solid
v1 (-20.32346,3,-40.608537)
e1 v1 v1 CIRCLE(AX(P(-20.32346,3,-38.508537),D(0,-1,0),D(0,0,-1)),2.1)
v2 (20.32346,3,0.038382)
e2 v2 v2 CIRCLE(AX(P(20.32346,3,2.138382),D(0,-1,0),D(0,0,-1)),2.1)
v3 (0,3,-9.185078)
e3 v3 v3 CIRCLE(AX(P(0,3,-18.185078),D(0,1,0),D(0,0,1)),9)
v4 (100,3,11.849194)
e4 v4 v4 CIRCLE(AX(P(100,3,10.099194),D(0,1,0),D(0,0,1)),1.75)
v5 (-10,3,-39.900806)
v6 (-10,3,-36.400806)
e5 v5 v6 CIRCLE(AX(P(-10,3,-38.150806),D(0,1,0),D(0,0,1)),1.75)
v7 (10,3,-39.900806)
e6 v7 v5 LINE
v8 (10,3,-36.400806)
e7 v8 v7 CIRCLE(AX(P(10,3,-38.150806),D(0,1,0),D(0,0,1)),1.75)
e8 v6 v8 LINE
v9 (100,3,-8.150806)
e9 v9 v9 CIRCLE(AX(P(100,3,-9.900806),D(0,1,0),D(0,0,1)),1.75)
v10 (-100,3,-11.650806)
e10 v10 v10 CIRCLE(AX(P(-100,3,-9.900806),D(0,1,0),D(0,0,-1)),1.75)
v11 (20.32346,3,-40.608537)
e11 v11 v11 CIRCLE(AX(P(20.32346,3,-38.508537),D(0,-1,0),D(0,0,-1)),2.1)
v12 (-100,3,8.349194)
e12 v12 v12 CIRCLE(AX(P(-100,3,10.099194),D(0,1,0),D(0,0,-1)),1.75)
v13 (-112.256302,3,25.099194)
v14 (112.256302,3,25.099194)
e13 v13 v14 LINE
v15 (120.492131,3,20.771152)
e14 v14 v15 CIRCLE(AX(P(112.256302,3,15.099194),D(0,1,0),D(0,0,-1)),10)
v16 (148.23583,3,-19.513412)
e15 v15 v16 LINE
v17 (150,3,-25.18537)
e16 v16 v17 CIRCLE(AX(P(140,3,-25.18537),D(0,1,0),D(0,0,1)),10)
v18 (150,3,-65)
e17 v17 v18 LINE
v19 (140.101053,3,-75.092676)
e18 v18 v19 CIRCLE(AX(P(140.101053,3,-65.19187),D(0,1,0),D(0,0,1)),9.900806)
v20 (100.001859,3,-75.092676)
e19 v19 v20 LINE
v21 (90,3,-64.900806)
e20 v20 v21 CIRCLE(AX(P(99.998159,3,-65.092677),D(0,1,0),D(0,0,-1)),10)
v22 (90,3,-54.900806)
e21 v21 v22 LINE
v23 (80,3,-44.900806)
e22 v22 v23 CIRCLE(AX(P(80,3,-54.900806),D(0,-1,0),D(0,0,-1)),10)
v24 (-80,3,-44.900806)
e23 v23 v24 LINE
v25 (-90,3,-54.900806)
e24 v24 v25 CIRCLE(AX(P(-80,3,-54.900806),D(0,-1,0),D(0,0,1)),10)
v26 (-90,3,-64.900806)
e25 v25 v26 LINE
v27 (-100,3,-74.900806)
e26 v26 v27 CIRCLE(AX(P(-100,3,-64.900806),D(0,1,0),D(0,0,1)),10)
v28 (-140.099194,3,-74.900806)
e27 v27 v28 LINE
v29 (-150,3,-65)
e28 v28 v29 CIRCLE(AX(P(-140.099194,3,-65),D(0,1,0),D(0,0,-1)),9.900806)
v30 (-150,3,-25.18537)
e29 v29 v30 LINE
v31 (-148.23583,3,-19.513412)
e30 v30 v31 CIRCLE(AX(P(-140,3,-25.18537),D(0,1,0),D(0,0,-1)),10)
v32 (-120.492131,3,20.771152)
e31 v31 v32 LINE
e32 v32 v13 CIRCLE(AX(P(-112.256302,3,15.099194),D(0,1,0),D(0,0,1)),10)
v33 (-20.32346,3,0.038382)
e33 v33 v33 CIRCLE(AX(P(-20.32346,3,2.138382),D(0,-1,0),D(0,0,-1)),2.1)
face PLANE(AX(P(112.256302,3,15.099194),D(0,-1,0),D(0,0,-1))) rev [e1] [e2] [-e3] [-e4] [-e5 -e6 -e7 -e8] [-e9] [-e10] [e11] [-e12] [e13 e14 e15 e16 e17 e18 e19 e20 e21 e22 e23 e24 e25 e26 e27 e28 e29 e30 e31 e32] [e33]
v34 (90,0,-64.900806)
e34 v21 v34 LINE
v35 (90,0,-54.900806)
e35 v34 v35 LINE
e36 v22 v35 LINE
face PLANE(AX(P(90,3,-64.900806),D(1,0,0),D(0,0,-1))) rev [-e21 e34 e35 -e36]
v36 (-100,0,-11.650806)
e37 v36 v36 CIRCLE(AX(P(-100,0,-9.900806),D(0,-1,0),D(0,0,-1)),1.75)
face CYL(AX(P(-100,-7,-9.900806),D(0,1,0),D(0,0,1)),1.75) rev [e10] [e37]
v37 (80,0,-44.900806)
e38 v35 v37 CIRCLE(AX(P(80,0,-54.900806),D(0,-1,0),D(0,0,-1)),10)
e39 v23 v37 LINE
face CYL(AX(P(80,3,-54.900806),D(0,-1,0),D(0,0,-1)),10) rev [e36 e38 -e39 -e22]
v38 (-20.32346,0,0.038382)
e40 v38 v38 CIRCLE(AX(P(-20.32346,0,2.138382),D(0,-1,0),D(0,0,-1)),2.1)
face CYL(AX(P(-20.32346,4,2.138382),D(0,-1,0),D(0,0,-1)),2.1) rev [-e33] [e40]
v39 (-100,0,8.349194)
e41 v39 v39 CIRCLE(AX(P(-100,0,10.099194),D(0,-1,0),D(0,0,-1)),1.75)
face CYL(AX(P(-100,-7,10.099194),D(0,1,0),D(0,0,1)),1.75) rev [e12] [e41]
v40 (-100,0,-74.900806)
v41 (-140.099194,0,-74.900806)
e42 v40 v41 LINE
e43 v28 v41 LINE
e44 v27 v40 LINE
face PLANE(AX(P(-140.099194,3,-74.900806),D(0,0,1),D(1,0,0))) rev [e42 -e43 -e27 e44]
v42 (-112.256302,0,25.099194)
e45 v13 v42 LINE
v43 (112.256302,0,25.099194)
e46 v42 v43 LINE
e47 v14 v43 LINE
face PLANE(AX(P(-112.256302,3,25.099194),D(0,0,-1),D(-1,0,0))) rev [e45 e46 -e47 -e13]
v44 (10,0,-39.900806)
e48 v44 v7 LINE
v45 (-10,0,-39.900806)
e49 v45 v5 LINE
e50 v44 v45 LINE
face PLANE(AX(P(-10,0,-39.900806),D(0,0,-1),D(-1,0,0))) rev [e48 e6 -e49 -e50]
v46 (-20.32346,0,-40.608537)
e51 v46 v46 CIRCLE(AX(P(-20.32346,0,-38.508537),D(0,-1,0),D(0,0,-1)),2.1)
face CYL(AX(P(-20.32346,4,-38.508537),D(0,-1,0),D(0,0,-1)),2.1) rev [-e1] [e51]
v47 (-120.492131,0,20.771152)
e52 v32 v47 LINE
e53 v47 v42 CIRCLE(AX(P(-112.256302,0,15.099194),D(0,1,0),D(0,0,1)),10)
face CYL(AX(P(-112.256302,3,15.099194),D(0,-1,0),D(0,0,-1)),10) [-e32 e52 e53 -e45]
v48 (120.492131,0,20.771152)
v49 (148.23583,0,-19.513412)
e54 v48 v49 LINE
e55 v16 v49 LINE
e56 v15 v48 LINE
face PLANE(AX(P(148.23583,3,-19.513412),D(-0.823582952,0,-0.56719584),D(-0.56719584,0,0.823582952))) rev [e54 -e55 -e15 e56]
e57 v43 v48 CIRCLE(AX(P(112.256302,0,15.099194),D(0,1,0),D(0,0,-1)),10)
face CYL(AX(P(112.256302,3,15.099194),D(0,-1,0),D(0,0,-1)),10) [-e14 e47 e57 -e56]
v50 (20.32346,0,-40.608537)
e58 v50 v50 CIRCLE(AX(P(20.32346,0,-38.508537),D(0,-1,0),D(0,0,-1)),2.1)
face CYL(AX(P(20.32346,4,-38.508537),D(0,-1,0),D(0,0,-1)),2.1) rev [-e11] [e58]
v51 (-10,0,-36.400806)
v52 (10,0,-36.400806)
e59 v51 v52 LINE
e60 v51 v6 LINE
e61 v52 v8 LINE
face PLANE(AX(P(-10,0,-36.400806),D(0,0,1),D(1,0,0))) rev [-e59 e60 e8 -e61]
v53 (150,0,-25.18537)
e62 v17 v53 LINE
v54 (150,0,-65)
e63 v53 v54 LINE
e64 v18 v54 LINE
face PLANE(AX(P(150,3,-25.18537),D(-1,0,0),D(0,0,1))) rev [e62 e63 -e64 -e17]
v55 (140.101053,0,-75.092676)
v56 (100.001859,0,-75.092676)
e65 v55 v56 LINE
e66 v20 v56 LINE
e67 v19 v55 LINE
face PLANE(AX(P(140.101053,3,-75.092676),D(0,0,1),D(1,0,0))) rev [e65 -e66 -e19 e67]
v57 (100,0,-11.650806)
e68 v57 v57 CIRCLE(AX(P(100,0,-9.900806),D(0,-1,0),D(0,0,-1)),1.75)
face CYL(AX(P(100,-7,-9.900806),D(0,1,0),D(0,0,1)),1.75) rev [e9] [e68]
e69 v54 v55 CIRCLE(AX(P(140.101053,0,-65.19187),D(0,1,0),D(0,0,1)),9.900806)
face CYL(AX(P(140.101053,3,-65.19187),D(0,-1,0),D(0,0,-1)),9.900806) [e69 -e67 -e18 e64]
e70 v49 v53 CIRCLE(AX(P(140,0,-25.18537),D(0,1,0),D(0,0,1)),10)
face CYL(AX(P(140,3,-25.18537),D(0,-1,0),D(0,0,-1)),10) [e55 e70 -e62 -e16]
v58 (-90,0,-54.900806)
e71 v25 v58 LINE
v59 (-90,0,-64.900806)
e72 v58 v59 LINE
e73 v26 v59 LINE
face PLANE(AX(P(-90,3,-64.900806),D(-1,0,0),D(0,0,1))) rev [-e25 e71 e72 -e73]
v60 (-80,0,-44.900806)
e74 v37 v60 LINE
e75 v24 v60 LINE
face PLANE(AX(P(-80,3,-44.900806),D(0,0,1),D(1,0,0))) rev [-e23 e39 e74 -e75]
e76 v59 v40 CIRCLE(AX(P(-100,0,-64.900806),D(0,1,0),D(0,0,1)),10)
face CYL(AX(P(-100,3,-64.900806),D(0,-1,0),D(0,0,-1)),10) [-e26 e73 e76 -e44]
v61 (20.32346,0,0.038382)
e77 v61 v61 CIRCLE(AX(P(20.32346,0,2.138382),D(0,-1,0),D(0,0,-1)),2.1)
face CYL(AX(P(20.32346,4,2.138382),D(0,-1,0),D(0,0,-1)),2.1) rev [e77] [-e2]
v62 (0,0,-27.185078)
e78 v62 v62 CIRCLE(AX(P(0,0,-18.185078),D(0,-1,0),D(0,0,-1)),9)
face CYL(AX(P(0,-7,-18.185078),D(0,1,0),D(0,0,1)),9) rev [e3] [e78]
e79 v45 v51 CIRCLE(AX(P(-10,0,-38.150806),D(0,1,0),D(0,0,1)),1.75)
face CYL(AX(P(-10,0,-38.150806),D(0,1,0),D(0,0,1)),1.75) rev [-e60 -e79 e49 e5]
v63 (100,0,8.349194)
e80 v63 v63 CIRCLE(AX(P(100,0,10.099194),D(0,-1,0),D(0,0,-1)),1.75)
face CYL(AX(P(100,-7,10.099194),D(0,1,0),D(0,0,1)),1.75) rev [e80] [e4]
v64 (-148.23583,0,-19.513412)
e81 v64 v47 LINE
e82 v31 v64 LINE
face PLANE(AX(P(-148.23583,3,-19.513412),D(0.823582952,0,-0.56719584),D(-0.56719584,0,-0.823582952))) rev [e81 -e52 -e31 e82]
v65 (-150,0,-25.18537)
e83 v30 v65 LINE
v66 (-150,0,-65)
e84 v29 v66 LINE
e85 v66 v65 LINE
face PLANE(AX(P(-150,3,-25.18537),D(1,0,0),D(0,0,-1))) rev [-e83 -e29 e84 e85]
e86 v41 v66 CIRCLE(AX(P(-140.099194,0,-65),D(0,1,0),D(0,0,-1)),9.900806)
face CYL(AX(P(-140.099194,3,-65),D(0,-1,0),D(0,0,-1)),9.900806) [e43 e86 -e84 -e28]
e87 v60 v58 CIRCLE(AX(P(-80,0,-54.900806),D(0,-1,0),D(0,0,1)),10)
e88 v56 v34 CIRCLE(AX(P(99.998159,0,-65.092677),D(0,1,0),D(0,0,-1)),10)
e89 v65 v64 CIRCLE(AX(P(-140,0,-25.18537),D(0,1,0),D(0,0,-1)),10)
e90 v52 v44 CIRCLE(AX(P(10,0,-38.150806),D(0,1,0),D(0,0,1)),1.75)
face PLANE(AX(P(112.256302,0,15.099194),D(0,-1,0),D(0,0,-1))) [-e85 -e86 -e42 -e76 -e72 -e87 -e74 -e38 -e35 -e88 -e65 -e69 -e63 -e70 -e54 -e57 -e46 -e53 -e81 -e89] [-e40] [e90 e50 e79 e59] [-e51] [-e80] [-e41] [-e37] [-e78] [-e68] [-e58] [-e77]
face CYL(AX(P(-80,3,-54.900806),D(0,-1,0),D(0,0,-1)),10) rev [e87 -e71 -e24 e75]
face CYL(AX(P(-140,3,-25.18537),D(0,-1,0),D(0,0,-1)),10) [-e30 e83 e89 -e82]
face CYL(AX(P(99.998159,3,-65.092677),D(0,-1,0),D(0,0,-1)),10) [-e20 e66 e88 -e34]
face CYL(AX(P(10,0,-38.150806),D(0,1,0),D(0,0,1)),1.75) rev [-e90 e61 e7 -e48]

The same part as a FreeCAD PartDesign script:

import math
import FreeCAD as App
import Part
import Sketcher
from FreeCAD import Vector
Q = App.Units.Quantity

doc = App.newDocument("Part")
body = doc.addObject("PartDesign::Body", "Body")

sketch1 = body.newObject("Sketcher::SketchObject", "Sketch")
sketch1.AttachmentSupport = (doc.getObject("XZ_Plane"), [""])
sketch1.MapMode = "FlatFace"
sketch1.addGeometry(Part.LineSegment(Vector(-148, -20, 0), Vector(-120, 21, 0)), False)
sketch1.addGeometry(Part.ArcOfCircle(Part.Circle(Vector(-112, 15, 0), Vector(0, 0, 1), 10), math.radians(90), math.radians(145)), False)
sketch1.addGeometry(Part.LineSegment(Vector(-112, 25, 0), Vector(112, 25, 0)), False)
sketch1.addGeometry(Part.ArcOfCircle(Part.Circle(Vector(112, 15, 0), Vector(0, 0, 1), 10), math.radians(35), math.radians(90)), False)
sketch1.addGeometry(Part.LineSegment(Vector(120, 21, 0), Vector(148, -20, 0)), False)
sketch1.addGeometry(Part.ArcOfCircle(Part.Circle(Vector(140, -25, 0), Vector(0, 0, 1), 10), math.radians(0), math.radians(35)), False)
sketch1.addGeometry(Part.LineSegment(Vector(150, -25, 0), Vector(150, -65, 0)), False)
sketch1.addGeometry(Part.ArcOfCircle(Part.Circle(Vector(140, -65, 0), Vector(0, 0, 1), 10), math.radians(-90), math.radians(1)), False)
sketch1.addGeometry(Part.LineSegment(Vector(140, -75, 0), Vector(100, -75, 0)), False)
sketch1.addGeometry(Part.ArcOfCircle(Part.Circle(Vector(100, -65, 0), Vector(0, 0, 1), 10), math.radians(179), math.radians(270)), False)
sketch1.addGeometry(Part.LineSegment(Vector(90, -65, 0), Vector(90, -55, 0)), False)
sketch1.addGeometry(Part.ArcOfCircle(Part.Circle(Vector(80, -55, 0), Vector(0, 0, 1), 10), math.radians(0), math.radians(90)), False)
sketch1.addGeometry(Part.LineSegment(Vector(80, -45, 0), Vector(-80, -45, 0)), False)
sketch1.addGeometry(Part.ArcOfCircle(Part.Circle(Vector(-80, -55, 0), Vector(0, 0, 1), 10), math.radians(90), math.radians(180)), False)
sketch1.addGeometry(Part.LineSegment(Vector(-90, -55, 0), Vector(-90, -65, 0)), False)
sketch1.addGeometry(Part.ArcOfCircle(Part.Circle(Vector(-100, -65, 0), Vector(0, 0, 1), 10), math.radians(-90), math.radians(0)), False)
sketch1.addGeometry(Part.LineSegment(Vector(-100, -75, 0), Vector(-140, -75, 0)), False)
sketch1.addGeometry(Part.ArcOfCircle(Part.Circle(Vector(-140, -65, 0), Vector(0, 0, 1), 10), math.radians(-180), math.radians(-90)), False)
sketch1.addGeometry(Part.LineSegment(Vector(-150, -65, 0), Vector(-150, -25, 0)), False)
sketch1.addGeometry(Part.ArcOfCircle(Part.Circle(Vector(-140, -25, 0), Vector(0, 0, 1), 10), math.radians(145), math.radians(180)), False)
sketch1.addConstraint(Sketcher.Constraint("Tangent", 0, 2, 1, 2))
sketch1.addConstraint(Sketcher.Constraint("Tangent", 1, 1, 2, 1))
sketch1.addConstraint(Sketcher.Constraint("Tangent", 2, 2, 3, 2))
sketch1.addConstraint(Sketcher.Constraint("Tangent", 3, 1, 4, 1))
sketch1.addConstraint(Sketcher.Constraint("Tangent", 4, 2, 5, 2))
sketch1.addConstraint(Sketcher.Constraint("Tangent", 5, 1, 6, 1))
sketch1.addConstraint(Sketcher.Constraint("Coincident", 6, 2, 7, 2))
sketch1.addConstraint(Sketcher.Constraint("Tangent", 7, 1, 8, 1))
sketch1.addConstraint(Sketcher.Constraint("Coincident", 8, 2, 9, 2))
sketch1.addConstraint(Sketcher.Constraint("Coincident", 9, 1, 10, 1))
sketch1.addConstraint(Sketcher.Constraint("Tangent", 10, 2, 11, 1))
sketch1.addConstraint(Sketcher.Constraint("Tangent", 11, 2, 12, 1))
sketch1.addConstraint(Sketcher.Constraint("Tangent", 12, 2, 13, 1))
sketch1.addConstraint(Sketcher.Constraint("Tangent", 13, 2, 14, 1))
sketch1.addConstraint(Sketcher.Constraint("Tangent", 14, 2, 15, 2))
sketch1.addConstraint(Sketcher.Constraint("Tangent", 15, 1, 16, 1))
sketch1.addConstraint(Sketcher.Constraint("Tangent", 16, 2, 17, 2))
sketch1.addConstraint(Sketcher.Constraint("Tangent", 17, 1, 18, 1))
sketch1.addConstraint(Sketcher.Constraint("Tangent", 18, 2, 19, 2))
sketch1.addConstraint(Sketcher.Constraint("Tangent", 19, 1, 0, 1))
sketch1.addConstraint(Sketcher.Constraint("Horizontal", 2))
sketch1.addConstraint(Sketcher.Constraint("Vertical", 6))
sketch1.addConstraint(Sketcher.Constraint("Horizontal", 8))
sketch1.addConstraint(Sketcher.Constraint("Vertical", 10))
sketch1.addConstraint(Sketcher.Constraint("Horizontal", 12))
sketch1.addConstraint(Sketcher.Constraint("Vertical", 14))
sketch1.addConstraint(Sketcher.Constraint("Horizontal", 16))
sketch1.addConstraint(Sketcher.Constraint("Vertical", 18))
sketch1.addConstraint(Sketcher.Constraint("Equal", 1, 3))
sketch1.addConstraint(Sketcher.Constraint("Equal", 3, 5))
sketch1.addConstraint(Sketcher.Constraint("Equal", 5, 9))
sketch1.addConstraint(Sketcher.Constraint("Equal", 9, 11))
sketch1.addConstraint(Sketcher.Constraint("Equal", 11, 13))
sketch1.addConstraint(Sketcher.Constraint("Equal", 13, 15))
sketch1.addConstraint(Sketcher.Constraint("Equal", 7, 17))
sketch1.addConstraint(Sketcher.Constraint("Equal", 15, 19))
sketch1.addConstraint(Sketcher.Constraint("Symmetric", 5, 3, 19, 3, -2))
sketch1.addConstraint(Sketcher.Constraint("Symmetric", 9, 1, 14, 2, -2))
sketch1.addConstraint(Sketcher.Constraint("Horizontal", 0, 2, 3, 1))
sketch1.addConstraint(Sketcher.Constraint("Horizontal", 17, 3, 6, 2))
sketch1.addConstraint(Sketcher.Constraint("Equal", 8, 16))
sketch1.addConstraint(Sketcher.Constraint("Radius", 1, Q("10 mm")))
sketch1.addConstraint(Sketcher.Constraint("DistanceX", 12, 2, 12, 1, Q("160 mm")))
sketch1.addConstraint(Sketcher.Constraint("DistanceY", 10, 1, 10, 2, Q("10 mm")))
sketch1.addConstraint(Sketcher.Constraint("DistanceX", -1, 1, 5, 3, Q("140 mm")))
sketch1.addConstraint(Sketcher.Constraint("DistanceY", 17, 3, -1, 1, Q("65 mm")))
sketch1.addConstraint(Sketcher.Constraint("DistanceY", 11, 3, 3, 3, Q("70 mm")))
sketch1.addConstraint(Sketcher.Constraint("Radius", 7, Q("9.900806 mm")))
sketch1.addConstraint(Sketcher.Constraint("DistanceY", 6, 2, 6, 1, Q("39.81463 mm")))
sketch1.addConstraint(Sketcher.Constraint("DistanceX", 1, 3, -1, 1, Q("112.256302 mm")))
sketch1.addConstraint(Sketcher.Constraint("DistanceY", 7, 3, 5, 3, Q("40.006499 mm")))
pad1 = body.newObject("PartDesign::Pad", "Pad")
pad1.Profile = sketch1
pad1.Length = 3
pad1.Reversed = True

sketch2 = body.newObject("Sketcher::SketchObject", "Sketch001")
sketch2.AttachmentSupport = (doc.getObject("XZ_Plane"), [""])
sketch2.MapMode = "FlatFace"
sketch2.AttachmentOffset = App.Placement(Vector(0, 0, -3), App.Rotation())
sketch2.addGeometry(Part.Circle(Vector(100, -9.9, 0), Vector(0, 0, 1), 1.8), False)
sketch2.addGeometry(Part.Circle(Vector(100, 10.1, 0), Vector(0, 0, 1), 1.8), False)
sketch2.addGeometry(Part.Circle(Vector(-100, 10.1, 0), Vector(0, 0, 1), 1.8), False)
sketch2.addGeometry(Part.Circle(Vector(-100, -9.9, 0), Vector(0, 0, 1), 1.8), False)
sketch2.addConstraint(Sketcher.Constraint("Equal", 0, 1))
sketch2.addConstraint(Sketcher.Constraint("Equal", 1, 2))
sketch2.addConstraint(Sketcher.Constraint("Equal", 2, 3))
sketch2.addConstraint(Sketcher.Constraint("Symmetric", 1, 3, 2, 3, -2))
sketch2.addConstraint(Sketcher.Constraint("Symmetric", 0, 3, 3, 3, -2))
sketch2.addConstraint(Sketcher.Constraint("Vertical", 0, 3, 1, 3))
sketch2.addConstraint(Sketcher.Constraint("Diameter", 0, Q("3.5 mm")))
sketch2.addConstraint(Sketcher.Constraint("DistanceX", -1, 1, 0, 3, Q("100 mm")))
sketch2.addConstraint(Sketcher.Constraint("DistanceY", 0, 3, 1, 3, Q("20 mm")))
sketch2.addConstraint(Sketcher.Constraint("DistanceY", 0, 3, -1, 1, Q("9.900806 mm")))
pocket1 = body.newObject("PartDesign::Pocket", "Pocket")
pocket1.Profile = sketch2
pocket1.Length = 10
pocket1.Reversed = True

sketch3 = body.newObject("Sketcher::SketchObject", "Sketch002")
sketch3.AttachmentSupport = (doc.getObject("XZ_Plane"), [""])
sketch3.MapMode = "FlatFace"
sketch3.AttachmentOffset = App.Placement(Vector(0, 0, -3), App.Rotation())
sketch3.addGeometry(Part.LineSegment(Vector(10, -39.9, 0), Vector(-10, -39.9, 0)), False)
sketch3.addGeometry(Part.ArcOfCircle(Part.Circle(Vector(-10, -38.2, 0), Vector(0, 0, 1), 1.8), math.radians(90), math.radians(270)), False)
sketch3.addGeometry(Part.LineSegment(Vector(-10, -36.4, 0), Vector(10, -36.4, 0)), False)
sketch3.addGeometry(Part.ArcOfCircle(Part.Circle(Vector(10, -38.2, 0), Vector(0, 0, 1), 1.8), math.radians(-90), math.radians(90)), False)
sketch3.addConstraint(Sketcher.Constraint("Tangent", 0, 2, 1, 2))
sketch3.addConstraint(Sketcher.Constraint("Tangent", 1, 1, 2, 1))
sketch3.addConstraint(Sketcher.Constraint("Tangent", 2, 2, 3, 2))
sketch3.addConstraint(Sketcher.Constraint("Tangent", 3, 1, 0, 1))
sketch3.addConstraint(Sketcher.Constraint("Horizontal", 0))
sketch3.addConstraint(Sketcher.Constraint("Horizontal", 2))
sketch3.addConstraint(Sketcher.Constraint("DistanceX", 0, 2, 0, 1, Q("20 mm")))
sketch3.addConstraint(Sketcher.Constraint("Radius", 1, Q("1.75 mm")))
sketch3.addConstraint(Sketcher.Constraint("DistanceX", 1, 3, -1, 1, Q("10 mm")))
sketch3.addConstraint(Sketcher.Constraint("DistanceY", 1, 3, -1, 1, Q("38.150806 mm")))
pocket2 = body.newObject("PartDesign::Pocket", "Pocket001")
pocket2.Profile = sketch3
pocket2.Length = 3
pocket2.Reversed = True

sketch4 = body.newObject("Sketcher::SketchObject", "Sketch003")
sketch4.AttachmentSupport = (doc.getObject("XZ_Plane"), [""])
sketch4.MapMode = "FlatFace"
sketch4.AttachmentOffset = App.Placement(Vector(0, 0, -3), App.Rotation())
sketch4.addGeometry(Part.Circle(Vector(0, -18, 0), Vector(0, 0, 1), 9), False)
sketch4.addConstraint(Sketcher.Constraint("PointOnObject", 0, 3, -2))
sketch4.addConstraint(Sketcher.Constraint("Diameter", 0, Q("18 mm")))
sketch4.addConstraint(Sketcher.Constraint("DistanceY", 0, 3, -1, 1, Q("18.185078 mm")))
pocket3 = body.newObject("PartDesign::Pocket", "Pocket002")
pocket3.Profile = sketch4
pocket3.Length = 10
pocket3.Reversed = True

sketch5 = body.newObject("Sketcher::SketchObject", "Sketch004")
sketch5.AttachmentSupport = (doc.getObject("XZ_Plane"), [""])
sketch5.MapMode = "FlatFace"
sketch5.addGeometry(Part.Circle(Vector(-20.3, 2.1, 0), Vector(0, 0, 1), 2.1), False)
sketch5.addGeometry(Part.Circle(Vector(20.3, 2.1, 0), Vector(0, 0, 1), 2.1), False)
sketch5.addGeometry(Part.Circle(Vector(20.3, -38.5, 0), Vector(0, 0, 1), 2.1), False)
sketch5.addGeometry(Part.Circle(Vector(-20.3, -38.5, 0), Vector(0, 0, 1), 2.1), False)
sketch5.addConstraint(Sketcher.Constraint("Equal", 0, 1))
sketch5.addConstraint(Sketcher.Constraint("Equal", 1, 2))
sketch5.addConstraint(Sketcher.Constraint("Equal", 2, 3))
sketch5.addConstraint(Sketcher.Constraint("Symmetric", 0, 3, 1, 3, -2))
sketch5.addConstraint(Sketcher.Constraint("Symmetric", 2, 3, 3, 3, -2))
sketch5.addConstraint(Sketcher.Constraint("Vertical", 1, 3, 2, 3))
sketch5.addConstraint(Sketcher.Constraint("Diameter", 0, Q("4.2 mm")))
sketch5.addConstraint(Sketcher.Constraint("DistanceX", 0, 3, -1, 1, Q("20.32346 mm")))
sketch5.addConstraint(Sketcher.Constraint("DistanceY", -1, 1, 0, 3, Q("2.138382 mm")))
sketch5.addConstraint(Sketcher.Constraint("DistanceY", 2, 3, 1, 3, Q("40.646919 mm")))
pocket4 = body.newObject("PartDesign::Pocket", "Pocket003")
pocket4.Profile = sketch5
pocket4.Length = 4

doc.recompute()
